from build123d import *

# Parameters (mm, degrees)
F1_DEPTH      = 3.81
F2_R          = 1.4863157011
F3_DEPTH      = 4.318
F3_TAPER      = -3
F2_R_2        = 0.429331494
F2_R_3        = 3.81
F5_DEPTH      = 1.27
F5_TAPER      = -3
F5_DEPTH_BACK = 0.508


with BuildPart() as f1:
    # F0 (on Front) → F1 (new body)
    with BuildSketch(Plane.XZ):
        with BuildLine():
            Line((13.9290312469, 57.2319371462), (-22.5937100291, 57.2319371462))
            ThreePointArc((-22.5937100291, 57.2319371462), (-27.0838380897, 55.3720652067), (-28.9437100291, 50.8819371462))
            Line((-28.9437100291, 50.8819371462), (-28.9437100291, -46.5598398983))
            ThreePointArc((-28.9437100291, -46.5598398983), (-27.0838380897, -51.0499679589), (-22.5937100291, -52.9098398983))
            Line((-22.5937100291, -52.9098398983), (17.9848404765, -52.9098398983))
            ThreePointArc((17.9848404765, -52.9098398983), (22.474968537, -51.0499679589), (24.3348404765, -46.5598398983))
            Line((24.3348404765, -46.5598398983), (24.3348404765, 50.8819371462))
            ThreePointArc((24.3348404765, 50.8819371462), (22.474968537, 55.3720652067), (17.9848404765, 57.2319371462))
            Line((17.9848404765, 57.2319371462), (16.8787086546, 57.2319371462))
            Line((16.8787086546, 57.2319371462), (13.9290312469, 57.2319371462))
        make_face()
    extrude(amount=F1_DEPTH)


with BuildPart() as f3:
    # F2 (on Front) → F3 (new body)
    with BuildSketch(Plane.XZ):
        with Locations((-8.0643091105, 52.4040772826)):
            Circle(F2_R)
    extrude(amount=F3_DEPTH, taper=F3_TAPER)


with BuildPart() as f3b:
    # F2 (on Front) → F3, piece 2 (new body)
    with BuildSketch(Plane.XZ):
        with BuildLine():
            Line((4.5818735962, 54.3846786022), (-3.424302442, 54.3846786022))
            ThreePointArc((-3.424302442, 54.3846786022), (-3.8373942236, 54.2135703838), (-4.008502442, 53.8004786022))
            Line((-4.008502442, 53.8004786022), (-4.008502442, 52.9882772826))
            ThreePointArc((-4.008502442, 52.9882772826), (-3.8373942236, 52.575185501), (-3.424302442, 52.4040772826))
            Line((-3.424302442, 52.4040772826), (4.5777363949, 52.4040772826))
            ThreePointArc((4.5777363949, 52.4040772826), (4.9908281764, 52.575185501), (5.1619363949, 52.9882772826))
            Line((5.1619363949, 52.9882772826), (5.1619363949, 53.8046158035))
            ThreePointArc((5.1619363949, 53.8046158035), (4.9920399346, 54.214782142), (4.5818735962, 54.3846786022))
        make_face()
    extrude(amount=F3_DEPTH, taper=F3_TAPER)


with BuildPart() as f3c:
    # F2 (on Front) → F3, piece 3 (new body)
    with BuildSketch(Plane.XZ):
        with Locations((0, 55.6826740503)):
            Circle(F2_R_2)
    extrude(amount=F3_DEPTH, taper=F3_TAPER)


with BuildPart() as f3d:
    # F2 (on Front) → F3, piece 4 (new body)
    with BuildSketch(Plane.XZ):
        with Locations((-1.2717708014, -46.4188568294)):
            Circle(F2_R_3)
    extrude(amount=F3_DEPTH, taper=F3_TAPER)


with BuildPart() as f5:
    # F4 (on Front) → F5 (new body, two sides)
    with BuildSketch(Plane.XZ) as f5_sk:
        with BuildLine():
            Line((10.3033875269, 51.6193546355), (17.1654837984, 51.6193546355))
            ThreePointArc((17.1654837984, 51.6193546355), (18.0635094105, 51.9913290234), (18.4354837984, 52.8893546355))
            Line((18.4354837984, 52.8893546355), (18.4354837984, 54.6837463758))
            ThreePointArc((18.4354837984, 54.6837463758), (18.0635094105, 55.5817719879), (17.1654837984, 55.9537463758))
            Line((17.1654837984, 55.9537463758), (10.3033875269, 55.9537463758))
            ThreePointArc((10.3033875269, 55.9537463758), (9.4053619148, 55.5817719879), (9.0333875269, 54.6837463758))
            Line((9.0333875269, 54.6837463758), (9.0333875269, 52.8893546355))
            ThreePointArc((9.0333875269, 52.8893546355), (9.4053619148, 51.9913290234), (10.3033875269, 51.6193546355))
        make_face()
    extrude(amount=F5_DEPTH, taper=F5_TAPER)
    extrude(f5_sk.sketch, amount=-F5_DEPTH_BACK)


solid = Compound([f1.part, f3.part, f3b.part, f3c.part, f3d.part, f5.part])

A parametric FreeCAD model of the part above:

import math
import FreeCAD as App
import Part
import Sketcher
from FreeCAD import Vector
Q = App.Units.Quantity

doc = App.newDocument("Part")
body = doc.addObject("PartDesign::Body", "Body")

# Sketch on XZ plane
sketch1 = body.newObject("Sketcher::SketchObject", "Sketch")
sketch1.AttachmentSupport = (doc.getObject("XZ_Plane"), [""])
sketch1.MapMode = "FlatFace"
sketch1.addGeometry(Part.ArcOfCircle(Part.Circle(Vector(-23, 51, 0), Vector(0, 0, 1), 6), math.radians(90), math.radians(180)), False)
sketch1.addGeometry(Part.LineSegment(Vector(-29, 51, 0), Vector(-29, -47, 0)), False)
sketch1.addGeometry(Part.ArcOfCircle(Part.Circle(Vector(-23, -47, 0), Vector(0, 0, 1), 6), math.radians(180), math.radians(270)), False)
sketch1.addGeometry(Part.LineSegment(Vector(-23, -53, 0), Vector(18, -53, 0)), False)
sketch1.addGeometry(Part.ArcOfCircle(Part.Circle(Vector(18, -47, 0), Vector(0, 0, 1), 6), math.radians(-90), math.radians(0)), False)
sketch1.addGeometry(Part.LineSegment(Vector(24, -47, 0), Vector(24, 51, 0)), False)
sketch1.addGeometry(Part.ArcOfCircle(Part.Circle(Vector(18, 51, 0), Vector(0, 0, 1), 6), math.radians(0), math.radians(90)), False)
sketch1.addGeometry(Part.LineSegment(Vector(18, 57, 0), Vector(-23, 57, 0)), False)
sketch1.addConstraint(Sketcher.Constraint("Tangent", 0, 2, 1, 1))
sketch1.addConstraint(Sketcher.Constraint("Tangent", 1, 2, 2, 1))
sketch1.addConstraint(Sketcher.Constraint("Tangent", 2, 2, 3, 1))
sketch1.addConstraint(Sketcher.Constraint("Tangent", 3, 2, 4, 1))
sketch1.addConstraint(Sketcher.Constraint("Tangent", 4, 2, 5, 1))
sketch1.addConstraint(Sketcher.Constraint("Tangent", 5, 2, 6, 1))
sketch1.addConstraint(Sketcher.Constraint("Tangent", 6, 2, 7, 1))
sketch1.addConstraint(Sketcher.Constraint("Tangent", 7, 2, 0, 1))
sketch1.addConstraint(Sketcher.Constraint("Vertical", 1))
sketch1.addConstraint(Sketcher.Constraint("Horizontal", 3))
sketch1.addConstraint(Sketcher.Constraint("Vertical", 5))
sketch1.addConstraint(Sketcher.Constraint("Horizontal", 7))
sketch1.addConstraint(Sketcher.Constraint("Equal", 0, 2))
sketch1.addConstraint(Sketcher.Constraint("Equal", 2, 4))
sketch1.addConstraint(Sketcher.Constraint("Equal", 4, 6))
sketch1.addConstraint(Sketcher.Constraint("Radius", 0, Q("0.25 in")))
sketch1.addConstraint(Sketcher.Constraint("DistanceX", 3, 1, 3, 2, 40.578551))
sketch1.addConstraint(Sketcher.Constraint("DistanceY", 1, 2, 1, 1, 97.441777))
sketch1.addConstraint(Sketcher.Constraint("DistanceX", 0, 3, -1, 1, 22.59371))
sketch1.addConstraint(Sketcher.Constraint("DistanceY", 2, 3, -1, 1, 46.55984))
pad1 = body.newObject("PartDesign::Pad", "Pad")
pad1.Profile = sketch1
pad1.Length = Q("0.15 in")
body2 = doc.addObject("PartDesign::Body", "Body001")

# Sketch on XZ plane
sketch2 = body2.newObject("Sketcher::SketchObject", "Sketch001")
sketch2.AttachmentSupport = (doc.getObject("XZ_Plane001"), [""])
sketch2.MapMode = "FlatFace"
sketch2.addGeometry(Part.Circle(Vector(-8.1, 52.4, 0), Vector(0, 0, 1), 1.5), False)
sketch2.addConstraint(Sketcher.Constraint("Diameter", 0, 2.972631))
sketch2.addConstraint(Sketcher.Constraint("DistanceX", 0, 3, -1, 1, 8.064309))
sketch2.addConstraint(Sketcher.Constraint("DistanceY", -1, 1, 0, 3, 52.404077))
pad2 = body2.newObject("PartDesign::Pad", "Pad001")
pad2.Profile = sketch2
pad2.Length = Q("0.17 in")
pad2.TaperAngle = 3
body3 = doc.addObject("PartDesign::Body", "Body002")

# Sketch on XZ plane
sketch3 = body3.newObject("Sketcher::SketchObject", "Sketch002")
sketch3.AttachmentSupport = (doc.getObject("XZ_Plane002"), [""])
sketch3.MapMode = "FlatFace"
sketch3.addGeometry(Part.LineSegment(Vector(4.6, 54.4, 0), Vector(-3.4, 54.4, 0)), False)
sketch3.addGeometry(Part.ArcOfCircle(Part.Circle(Vector(-3.4, 53.8, 0), Vector(0, 0, 1), 0.6), math.radians(90), math.radians(180)), False)
sketch3.addGeometry(Part.LineSegment(Vector(-4, 53.8, 0), Vector(-4, 53, 0)), False)
sketch3.addGeometry(Part.ArcOfCircle(Part.Circle(Vector(-3.4, 53, 0), Vector(0, 0, 1), 0.6), math.radians(180), math.radians(270)), False)
sketch3.addGeometry(Part.LineSegment(Vector(-3.4, 52.4, 0), Vector(4.6, 52.4, 0)), False)
sketch3.addGeometry(Part.ArcOfCircle(Part.Circle(Vector(4.6, 53, 0), Vector(0, 0, 1), 0.6), math.radians(-90), math.radians(0)), False)
sketch3.addGeometry(Part.LineSegment(Vector(5.2, 53, 0), Vector(5.2, 53.8, 0)), False)
sketch3.addGeometry(Part.ArcOfCircle(Part.Circle(Vector(4.6, 53.8, 0), Vector(0, 0, 1), 0.6), math.radians(0), math.radians(90)), False)
sketch3.addConstraint(Sketcher.Constraint("Tangent", 0, 2, 1, 1))
sketch3.addConstraint(Sketcher.Constraint("Tangent", 1, 2, 2, 1))
sketch3.addConstraint(Sketcher.Constraint("Tangent", 2, 2, 3, 1))
sketch3.addConstraint(Sketcher.Constraint("Tangent", 3, 2, 4, 1))
sketch3.addConstraint(Sketcher.Constraint("Tangent", 4, 2, 5, 1))
sketch3.addConstraint(Sketcher.Constraint("Tangent", 5, 2, 6, 1))
sketch3.addConstraint(Sketcher.Constraint("Tangent", 6, 2, 7, 1))
sketch3.addConstraint(Sketcher.Constraint("Tangent", 7, 2, 0, 1))
sketch3.addConstraint(Sketcher.Constraint("Horizontal", 0))
sketch3.addConstraint(Sketcher.Constraint("Vertical", 2))
sketch3.addConstraint(Sketcher.Constraint("Horizontal", 4))
sketch3.addConstraint(Sketcher.Constraint("Vertical", 6))
sketch3.addConstraint(Sketcher.Constraint("Equal", 1, 3))
sketch3.addConstraint(Sketcher.Constraint("Equal", 3, 5))
sketch3.addConstraint(Sketcher.Constraint("Radius", 1, Q("0.023 in")))
sketch3.addConstraint(Sketcher.Constraint("DistanceY", 2, 2, 2, 1, 0.812201))
sketch3.addConstraint(Sketcher.Constraint("Radius", 7, 0.580063))
sketch3.addConstraint(Sketcher.Constraint("DistanceX", 4, 1, 4, 2, 8.002039))
sketch3.addConstraint(Sketcher.Constraint("DistanceY", -1, 1, 1, 3, 53.800479))
sketch3.addConstraint(Sketcher.Constraint("DistanceX", 1, 3, -1, 1, 3.424302))
pad3 = body3.newObject("PartDesign::Pad", "Pad002")
pad3.Profile = sketch3
pad3.Length = Q("0.17 in")
pad3.TaperAngle = 3
body4 = doc.addObject("PartDesign::Body", "Body003")

# Sketch on XZ plane
sketch4 = body4.newObject("Sketcher::SketchObject", "Sketch003")
sketch4.AttachmentSupport = (doc.getObject("XZ_Plane003"), [""])
sketch4.MapMode = "FlatFace"
sketch4.addGeometry(Part.Circle(Vector(0, 55.68, 0), Vector(0, 0, 1), 0.43), False)
sketch4.addConstraint(Sketcher.Constraint("PointOnObject", 0, 3, -2))
sketch4.addConstraint(Sketcher.Constraint("Diameter", 0, 0.858663))
sketch4.addConstraint(Sketcher.Constraint("DistanceY", -1, 1, 0, 3, 55.682674))
pad4 = body4.newObject("PartDesign::Pad", "Pad003")
pad4.Profile = sketch4
pad4.Length = Q("0.17 in")
pad4.TaperAngle = 3
body5 = doc.addObject("PartDesign::Body", "Body004")

# Sketch on XZ plane
sketch5 = body5.newObject("Sketcher::SketchObject", "Sketch004")
sketch5.AttachmentSupport = (doc.getObject("XZ_Plane004"), [""])
sketch5.MapMode = "FlatFace"
sketch5.addGeometry(Part.Circle(Vector(-1.3, -46.4, 0), Vector(0, 0, 1), 3.8), False)
sketch5.addConstraint(Sketcher.Constraint("Diameter", 0, Q("0.3 in")))
sketch5.addConstraint(Sketcher.Constraint("DistanceX", 0, 3, -1, 1, 1.271771))
sketch5.addConstraint(Sketcher.Constraint("DistanceY", 0, 3, -1, 1, 46.418857))
pad5 = body5.newObject("PartDesign::Pad", "Pad004")
pad5.Profile = sketch5
pad5.Length = Q("0.17 in")
pad5.TaperAngle = 3
body6 = doc.addObject("PartDesign::Body", "Body005")

# Sketch on XZ plane
sketch6 = body6.newObject("Sketcher::SketchObject", "Sketch005")
sketch6.AttachmentSupport = (doc.getObject("XZ_Plane005"), [""])
sketch6.MapMode = "FlatFace"
sketch6.addGeometry(Part.LineSegment(Vector(10.3, 51.6, 0), Vector(17.2, 51.6, 0)), False)
sketch6.addGeometry(Part.ArcOfCircle(Part.Circle(Vector(17.2, 52.9, 0), Vector(0, 0, 1), 1.3), math.radians(-90), math.radians(0)), False)
sketch6.addGeometry(Part.LineSegment(Vector(18.4, 52.9, 0), Vector(18.4, 54.7, 0)), False)
sketch6.addGeometry(Part.ArcOfCircle(Part.Circle(Vector(17.2, 54.7, 0), Vector(0, 0, 1), 1.3), math.radians(0), math.radians(90)), False)
sketch6.addGeometry(Part.LineSegment(Vector(17.2, 56, 0), Vector(10.3, 56, 0)), False)
sketch6.addGeometry(Part.ArcOfCircle(Part.Circle(Vector(10.3, 54.7, 0), Vector(0, 0, 1), 1.3), math.radians(90), math.radians(180)), False)
sketch6.addGeometry(Part.LineSegment(Vector(9, 54.7, 0), Vector(9, 52.9, 0)), False)
sketch6.addGeometry(Part.ArcOfCircle(Part.Circle(Vector(10.3, 52.9, 0), Vector(0, 0, 1), 1.3), math.radians(-180), math.radians(-90)), False)
sketch6.addConstraint(Sketcher.Constraint("Tangent", 0, 2, 1, 1))
sketch6.addConstraint(Sketcher.Constraint("Tangent", 1, 2, 2, 1))
sketch6.addConstraint(Sketcher.Constraint("Tangent", 2, 2, 3, 1))
sketch6.addConstraint(Sketcher.Constraint("Tangent", 3, 2, 4, 1))
sketch6.addConstraint(Sketcher.Constraint("Tangent", 4, 2, 5, 1))
sketch6.addConstraint(Sketcher.Constraint("Tangent", 5, 2, 6, 1))
sketch6.addConstraint(Sketcher.Constraint("Tangent", 6, 2, 7, 1))
sketch6.addConstraint(Sketcher.Constraint("Tangent", 7, 2, 0, 1))
sketch6.addConstraint(Sketcher.Constraint("Horizontal", 0))
sketch6.addConstraint(Sketcher.Constraint("Vertical", 2))
sketch6.addConstraint(Sketcher.Constraint("Horizontal", 4))
sketch6.addConstraint(Sketcher.Constraint("Vertical", 6))
sketch6.addConstraint(Sketcher.Constraint("Equal", 1, 3))
sketch6.addConstraint(Sketcher.Constraint("Equal", 3, 5))
sketch6.addConstraint(Sketcher.Constraint("Equal", 5, 7))
sketch6.addConstraint(Sketcher.Constraint("Radius", 1, Q("0.05 in")))
sketch6.addConstraint(Sketcher.Constraint("DistanceY", 2, 1, 2, 2, 1.794392))
sketch6.addConstraint(Sketcher.Constraint("DistanceX", 0, 1, 0, 2, 6.862096))
sketch6.addConstraint(Sketcher.Constraint("DistanceX", -1, 1, 1, 3, 17.165484))
sketch6.addConstraint(Sketcher.Constraint("DistanceY", -1, 1, 1, 3, 52.889355))
pad6 = body6.newObject("PartDesign::Pad", "Pad005")
pad6.Profile = sketch6
pad6.Length = Q("0.05 in")
pad6.TaperAngle = 3
pad7 = body6.newObject("PartDesign::Pad", "Pad006")
pad7.Profile = sketch6
pad7.Length = Q("0.02 in")
pad7.Reversed = True

doc.recompute()
